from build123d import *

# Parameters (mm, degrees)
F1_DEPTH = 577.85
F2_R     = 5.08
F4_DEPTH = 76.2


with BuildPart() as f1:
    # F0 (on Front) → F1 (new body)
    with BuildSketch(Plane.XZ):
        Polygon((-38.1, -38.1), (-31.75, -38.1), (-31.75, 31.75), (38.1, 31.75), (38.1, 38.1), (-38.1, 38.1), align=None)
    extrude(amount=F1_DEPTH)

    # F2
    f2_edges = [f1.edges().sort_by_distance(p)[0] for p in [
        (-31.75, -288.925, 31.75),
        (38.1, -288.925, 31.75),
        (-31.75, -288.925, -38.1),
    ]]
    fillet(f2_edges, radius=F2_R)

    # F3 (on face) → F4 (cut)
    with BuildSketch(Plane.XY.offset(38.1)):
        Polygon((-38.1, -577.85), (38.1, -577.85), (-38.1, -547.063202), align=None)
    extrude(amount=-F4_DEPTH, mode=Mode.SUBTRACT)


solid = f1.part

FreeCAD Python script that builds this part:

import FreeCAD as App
import Part
import Sketcher

V = App.Vector
Q = App.Units.Quantity


def edges_at(feature, points):
    """Names of the edges that pass closest to the given points."""
    edges = feature.Shape.Edges
    near = lambda p: min(range(len(edges)), key=lambda i: edges[i].distToShape(Part.Vertex(*p))[0])
    return sorted({f"Edge{near(p) + 1}" for p in points})


def add_polygon(sketch, points):
    """Adds a closed chain of lines whose ends are joined by coincident constraints."""
    first, n = sketch.GeometryCount, len(points)
    for a, b in zip(points, points[1:] + points[:1]):
        sketch.addGeometry(Part.LineSegment(App.Vector(*a, 0), App.Vector(*b, 0)), False)
    for i in range(n):
        sketch.addConstraint(Sketcher.Constraint("Coincident", first + i, 2, first + (i + 1) % n, 1))

doc = App.newDocument("Part")
body = doc.addObject("PartDesign::Body", "Body")

# Sketch on XZ plane
sketch1 = doc.addObject("Sketcher::SketchObject", "Sketch")
body.addObject(sketch1)
sketch1.AttachmentSupport = (doc.XZ_Plane, [""])
sketch1.MapMode = "FlatFace"
add_polygon(sketch1, [(-38, -38), (-32, -38), (-32, 32), (38, 32), (38, 38), (-38, 38)])  # lines 0-5
sketch1.addConstraint(Sketcher.Constraint("Horizontal", 0))
sketch1.addConstraint(Sketcher.Constraint("Vertical", 1))
sketch1.addConstraint(Sketcher.Constraint("Horizontal", 2))
sketch1.addConstraint(Sketcher.Constraint("Vertical", 3))
sketch1.addConstraint(Sketcher.Constraint("Horizontal", 4))
sketch1.addConstraint(Sketcher.Constraint("Vertical", 5))
sketch1.addConstraint(Sketcher.Constraint("Symmetric", 3, 2, 5, 2, -1, 1))
sketch1.addConstraint(Sketcher.Constraint("Equal", 2, 1))
sketch1.addConstraint(Sketcher.Constraint("Equal", 0, 3))
sketch1.addConstraint(Sketcher.Constraint("DistanceX", 4, 2, 4, 1, Q("3 in")))
sketch1.addConstraint(Sketcher.Constraint("DistanceX", 0, 1, 0, 2, Q("0.25 in")))
pad1 = doc.addObject("PartDesign::Pad", "Pad")
body.addObject(pad1)
pad1.Profile = sketch1
pad1.Length = Q("22.75 in")
doc.recompute()

fillet = doc.addObject("PartDesign::Fillet", "Fillet")
body.addObject(fillet)
fillet.Base = (pad1, edges_at(pad1, [(-31.75, -288.925, 31.75), (38.1, -288.925, 31.75), (-31.75, -288.925, -38.1)]))
fillet.Radius = Q("0.2 in")

# Sketch on XY plane
sketch2 = doc.addObject("Sketcher::SketchObject", "Sketch001")
body.addObject(sketch2)
sketch2.AttachmentSupport = (doc.XY_Plane, [""])
sketch2.MapMode = "FlatFace"
sketch2.AttachmentOffset = App.Placement(V(0, 0, 1.5 * 25.4), App.Rotation())
add_polygon(sketch2, [(-38, -578), (38, -578), (-38, -547)])  # lines 0-2
sketch2.addConstraint(Sketcher.Constraint("Horizontal", 0))
sketch2.addConstraint(Sketcher.Constraint("Vertical", 2))
sketch2.addConstraint(Sketcher.Constraint("DistanceX", 0, 1, 0, 2, Q("3 in")))
sketch2.addConstraint(Sketcher.Constraint("Angle", 1, Q("158 deg")))
sketch2.addConstraint(Sketcher.Constraint("DistanceX", -1, 1, 0, 2, Q("1.5 in")))
sketch2.addConstraint(Sketcher.Constraint("DistanceY", 0, 2, -1, 1, Q("22.75 in")))
pocket1 = doc.addObject("PartDesign::Pocket", "Pocket")
body.addObject(pocket1)
pocket1.Profile = sketch2
pocket1.Length = Q("3 in")

doc.recompute()
